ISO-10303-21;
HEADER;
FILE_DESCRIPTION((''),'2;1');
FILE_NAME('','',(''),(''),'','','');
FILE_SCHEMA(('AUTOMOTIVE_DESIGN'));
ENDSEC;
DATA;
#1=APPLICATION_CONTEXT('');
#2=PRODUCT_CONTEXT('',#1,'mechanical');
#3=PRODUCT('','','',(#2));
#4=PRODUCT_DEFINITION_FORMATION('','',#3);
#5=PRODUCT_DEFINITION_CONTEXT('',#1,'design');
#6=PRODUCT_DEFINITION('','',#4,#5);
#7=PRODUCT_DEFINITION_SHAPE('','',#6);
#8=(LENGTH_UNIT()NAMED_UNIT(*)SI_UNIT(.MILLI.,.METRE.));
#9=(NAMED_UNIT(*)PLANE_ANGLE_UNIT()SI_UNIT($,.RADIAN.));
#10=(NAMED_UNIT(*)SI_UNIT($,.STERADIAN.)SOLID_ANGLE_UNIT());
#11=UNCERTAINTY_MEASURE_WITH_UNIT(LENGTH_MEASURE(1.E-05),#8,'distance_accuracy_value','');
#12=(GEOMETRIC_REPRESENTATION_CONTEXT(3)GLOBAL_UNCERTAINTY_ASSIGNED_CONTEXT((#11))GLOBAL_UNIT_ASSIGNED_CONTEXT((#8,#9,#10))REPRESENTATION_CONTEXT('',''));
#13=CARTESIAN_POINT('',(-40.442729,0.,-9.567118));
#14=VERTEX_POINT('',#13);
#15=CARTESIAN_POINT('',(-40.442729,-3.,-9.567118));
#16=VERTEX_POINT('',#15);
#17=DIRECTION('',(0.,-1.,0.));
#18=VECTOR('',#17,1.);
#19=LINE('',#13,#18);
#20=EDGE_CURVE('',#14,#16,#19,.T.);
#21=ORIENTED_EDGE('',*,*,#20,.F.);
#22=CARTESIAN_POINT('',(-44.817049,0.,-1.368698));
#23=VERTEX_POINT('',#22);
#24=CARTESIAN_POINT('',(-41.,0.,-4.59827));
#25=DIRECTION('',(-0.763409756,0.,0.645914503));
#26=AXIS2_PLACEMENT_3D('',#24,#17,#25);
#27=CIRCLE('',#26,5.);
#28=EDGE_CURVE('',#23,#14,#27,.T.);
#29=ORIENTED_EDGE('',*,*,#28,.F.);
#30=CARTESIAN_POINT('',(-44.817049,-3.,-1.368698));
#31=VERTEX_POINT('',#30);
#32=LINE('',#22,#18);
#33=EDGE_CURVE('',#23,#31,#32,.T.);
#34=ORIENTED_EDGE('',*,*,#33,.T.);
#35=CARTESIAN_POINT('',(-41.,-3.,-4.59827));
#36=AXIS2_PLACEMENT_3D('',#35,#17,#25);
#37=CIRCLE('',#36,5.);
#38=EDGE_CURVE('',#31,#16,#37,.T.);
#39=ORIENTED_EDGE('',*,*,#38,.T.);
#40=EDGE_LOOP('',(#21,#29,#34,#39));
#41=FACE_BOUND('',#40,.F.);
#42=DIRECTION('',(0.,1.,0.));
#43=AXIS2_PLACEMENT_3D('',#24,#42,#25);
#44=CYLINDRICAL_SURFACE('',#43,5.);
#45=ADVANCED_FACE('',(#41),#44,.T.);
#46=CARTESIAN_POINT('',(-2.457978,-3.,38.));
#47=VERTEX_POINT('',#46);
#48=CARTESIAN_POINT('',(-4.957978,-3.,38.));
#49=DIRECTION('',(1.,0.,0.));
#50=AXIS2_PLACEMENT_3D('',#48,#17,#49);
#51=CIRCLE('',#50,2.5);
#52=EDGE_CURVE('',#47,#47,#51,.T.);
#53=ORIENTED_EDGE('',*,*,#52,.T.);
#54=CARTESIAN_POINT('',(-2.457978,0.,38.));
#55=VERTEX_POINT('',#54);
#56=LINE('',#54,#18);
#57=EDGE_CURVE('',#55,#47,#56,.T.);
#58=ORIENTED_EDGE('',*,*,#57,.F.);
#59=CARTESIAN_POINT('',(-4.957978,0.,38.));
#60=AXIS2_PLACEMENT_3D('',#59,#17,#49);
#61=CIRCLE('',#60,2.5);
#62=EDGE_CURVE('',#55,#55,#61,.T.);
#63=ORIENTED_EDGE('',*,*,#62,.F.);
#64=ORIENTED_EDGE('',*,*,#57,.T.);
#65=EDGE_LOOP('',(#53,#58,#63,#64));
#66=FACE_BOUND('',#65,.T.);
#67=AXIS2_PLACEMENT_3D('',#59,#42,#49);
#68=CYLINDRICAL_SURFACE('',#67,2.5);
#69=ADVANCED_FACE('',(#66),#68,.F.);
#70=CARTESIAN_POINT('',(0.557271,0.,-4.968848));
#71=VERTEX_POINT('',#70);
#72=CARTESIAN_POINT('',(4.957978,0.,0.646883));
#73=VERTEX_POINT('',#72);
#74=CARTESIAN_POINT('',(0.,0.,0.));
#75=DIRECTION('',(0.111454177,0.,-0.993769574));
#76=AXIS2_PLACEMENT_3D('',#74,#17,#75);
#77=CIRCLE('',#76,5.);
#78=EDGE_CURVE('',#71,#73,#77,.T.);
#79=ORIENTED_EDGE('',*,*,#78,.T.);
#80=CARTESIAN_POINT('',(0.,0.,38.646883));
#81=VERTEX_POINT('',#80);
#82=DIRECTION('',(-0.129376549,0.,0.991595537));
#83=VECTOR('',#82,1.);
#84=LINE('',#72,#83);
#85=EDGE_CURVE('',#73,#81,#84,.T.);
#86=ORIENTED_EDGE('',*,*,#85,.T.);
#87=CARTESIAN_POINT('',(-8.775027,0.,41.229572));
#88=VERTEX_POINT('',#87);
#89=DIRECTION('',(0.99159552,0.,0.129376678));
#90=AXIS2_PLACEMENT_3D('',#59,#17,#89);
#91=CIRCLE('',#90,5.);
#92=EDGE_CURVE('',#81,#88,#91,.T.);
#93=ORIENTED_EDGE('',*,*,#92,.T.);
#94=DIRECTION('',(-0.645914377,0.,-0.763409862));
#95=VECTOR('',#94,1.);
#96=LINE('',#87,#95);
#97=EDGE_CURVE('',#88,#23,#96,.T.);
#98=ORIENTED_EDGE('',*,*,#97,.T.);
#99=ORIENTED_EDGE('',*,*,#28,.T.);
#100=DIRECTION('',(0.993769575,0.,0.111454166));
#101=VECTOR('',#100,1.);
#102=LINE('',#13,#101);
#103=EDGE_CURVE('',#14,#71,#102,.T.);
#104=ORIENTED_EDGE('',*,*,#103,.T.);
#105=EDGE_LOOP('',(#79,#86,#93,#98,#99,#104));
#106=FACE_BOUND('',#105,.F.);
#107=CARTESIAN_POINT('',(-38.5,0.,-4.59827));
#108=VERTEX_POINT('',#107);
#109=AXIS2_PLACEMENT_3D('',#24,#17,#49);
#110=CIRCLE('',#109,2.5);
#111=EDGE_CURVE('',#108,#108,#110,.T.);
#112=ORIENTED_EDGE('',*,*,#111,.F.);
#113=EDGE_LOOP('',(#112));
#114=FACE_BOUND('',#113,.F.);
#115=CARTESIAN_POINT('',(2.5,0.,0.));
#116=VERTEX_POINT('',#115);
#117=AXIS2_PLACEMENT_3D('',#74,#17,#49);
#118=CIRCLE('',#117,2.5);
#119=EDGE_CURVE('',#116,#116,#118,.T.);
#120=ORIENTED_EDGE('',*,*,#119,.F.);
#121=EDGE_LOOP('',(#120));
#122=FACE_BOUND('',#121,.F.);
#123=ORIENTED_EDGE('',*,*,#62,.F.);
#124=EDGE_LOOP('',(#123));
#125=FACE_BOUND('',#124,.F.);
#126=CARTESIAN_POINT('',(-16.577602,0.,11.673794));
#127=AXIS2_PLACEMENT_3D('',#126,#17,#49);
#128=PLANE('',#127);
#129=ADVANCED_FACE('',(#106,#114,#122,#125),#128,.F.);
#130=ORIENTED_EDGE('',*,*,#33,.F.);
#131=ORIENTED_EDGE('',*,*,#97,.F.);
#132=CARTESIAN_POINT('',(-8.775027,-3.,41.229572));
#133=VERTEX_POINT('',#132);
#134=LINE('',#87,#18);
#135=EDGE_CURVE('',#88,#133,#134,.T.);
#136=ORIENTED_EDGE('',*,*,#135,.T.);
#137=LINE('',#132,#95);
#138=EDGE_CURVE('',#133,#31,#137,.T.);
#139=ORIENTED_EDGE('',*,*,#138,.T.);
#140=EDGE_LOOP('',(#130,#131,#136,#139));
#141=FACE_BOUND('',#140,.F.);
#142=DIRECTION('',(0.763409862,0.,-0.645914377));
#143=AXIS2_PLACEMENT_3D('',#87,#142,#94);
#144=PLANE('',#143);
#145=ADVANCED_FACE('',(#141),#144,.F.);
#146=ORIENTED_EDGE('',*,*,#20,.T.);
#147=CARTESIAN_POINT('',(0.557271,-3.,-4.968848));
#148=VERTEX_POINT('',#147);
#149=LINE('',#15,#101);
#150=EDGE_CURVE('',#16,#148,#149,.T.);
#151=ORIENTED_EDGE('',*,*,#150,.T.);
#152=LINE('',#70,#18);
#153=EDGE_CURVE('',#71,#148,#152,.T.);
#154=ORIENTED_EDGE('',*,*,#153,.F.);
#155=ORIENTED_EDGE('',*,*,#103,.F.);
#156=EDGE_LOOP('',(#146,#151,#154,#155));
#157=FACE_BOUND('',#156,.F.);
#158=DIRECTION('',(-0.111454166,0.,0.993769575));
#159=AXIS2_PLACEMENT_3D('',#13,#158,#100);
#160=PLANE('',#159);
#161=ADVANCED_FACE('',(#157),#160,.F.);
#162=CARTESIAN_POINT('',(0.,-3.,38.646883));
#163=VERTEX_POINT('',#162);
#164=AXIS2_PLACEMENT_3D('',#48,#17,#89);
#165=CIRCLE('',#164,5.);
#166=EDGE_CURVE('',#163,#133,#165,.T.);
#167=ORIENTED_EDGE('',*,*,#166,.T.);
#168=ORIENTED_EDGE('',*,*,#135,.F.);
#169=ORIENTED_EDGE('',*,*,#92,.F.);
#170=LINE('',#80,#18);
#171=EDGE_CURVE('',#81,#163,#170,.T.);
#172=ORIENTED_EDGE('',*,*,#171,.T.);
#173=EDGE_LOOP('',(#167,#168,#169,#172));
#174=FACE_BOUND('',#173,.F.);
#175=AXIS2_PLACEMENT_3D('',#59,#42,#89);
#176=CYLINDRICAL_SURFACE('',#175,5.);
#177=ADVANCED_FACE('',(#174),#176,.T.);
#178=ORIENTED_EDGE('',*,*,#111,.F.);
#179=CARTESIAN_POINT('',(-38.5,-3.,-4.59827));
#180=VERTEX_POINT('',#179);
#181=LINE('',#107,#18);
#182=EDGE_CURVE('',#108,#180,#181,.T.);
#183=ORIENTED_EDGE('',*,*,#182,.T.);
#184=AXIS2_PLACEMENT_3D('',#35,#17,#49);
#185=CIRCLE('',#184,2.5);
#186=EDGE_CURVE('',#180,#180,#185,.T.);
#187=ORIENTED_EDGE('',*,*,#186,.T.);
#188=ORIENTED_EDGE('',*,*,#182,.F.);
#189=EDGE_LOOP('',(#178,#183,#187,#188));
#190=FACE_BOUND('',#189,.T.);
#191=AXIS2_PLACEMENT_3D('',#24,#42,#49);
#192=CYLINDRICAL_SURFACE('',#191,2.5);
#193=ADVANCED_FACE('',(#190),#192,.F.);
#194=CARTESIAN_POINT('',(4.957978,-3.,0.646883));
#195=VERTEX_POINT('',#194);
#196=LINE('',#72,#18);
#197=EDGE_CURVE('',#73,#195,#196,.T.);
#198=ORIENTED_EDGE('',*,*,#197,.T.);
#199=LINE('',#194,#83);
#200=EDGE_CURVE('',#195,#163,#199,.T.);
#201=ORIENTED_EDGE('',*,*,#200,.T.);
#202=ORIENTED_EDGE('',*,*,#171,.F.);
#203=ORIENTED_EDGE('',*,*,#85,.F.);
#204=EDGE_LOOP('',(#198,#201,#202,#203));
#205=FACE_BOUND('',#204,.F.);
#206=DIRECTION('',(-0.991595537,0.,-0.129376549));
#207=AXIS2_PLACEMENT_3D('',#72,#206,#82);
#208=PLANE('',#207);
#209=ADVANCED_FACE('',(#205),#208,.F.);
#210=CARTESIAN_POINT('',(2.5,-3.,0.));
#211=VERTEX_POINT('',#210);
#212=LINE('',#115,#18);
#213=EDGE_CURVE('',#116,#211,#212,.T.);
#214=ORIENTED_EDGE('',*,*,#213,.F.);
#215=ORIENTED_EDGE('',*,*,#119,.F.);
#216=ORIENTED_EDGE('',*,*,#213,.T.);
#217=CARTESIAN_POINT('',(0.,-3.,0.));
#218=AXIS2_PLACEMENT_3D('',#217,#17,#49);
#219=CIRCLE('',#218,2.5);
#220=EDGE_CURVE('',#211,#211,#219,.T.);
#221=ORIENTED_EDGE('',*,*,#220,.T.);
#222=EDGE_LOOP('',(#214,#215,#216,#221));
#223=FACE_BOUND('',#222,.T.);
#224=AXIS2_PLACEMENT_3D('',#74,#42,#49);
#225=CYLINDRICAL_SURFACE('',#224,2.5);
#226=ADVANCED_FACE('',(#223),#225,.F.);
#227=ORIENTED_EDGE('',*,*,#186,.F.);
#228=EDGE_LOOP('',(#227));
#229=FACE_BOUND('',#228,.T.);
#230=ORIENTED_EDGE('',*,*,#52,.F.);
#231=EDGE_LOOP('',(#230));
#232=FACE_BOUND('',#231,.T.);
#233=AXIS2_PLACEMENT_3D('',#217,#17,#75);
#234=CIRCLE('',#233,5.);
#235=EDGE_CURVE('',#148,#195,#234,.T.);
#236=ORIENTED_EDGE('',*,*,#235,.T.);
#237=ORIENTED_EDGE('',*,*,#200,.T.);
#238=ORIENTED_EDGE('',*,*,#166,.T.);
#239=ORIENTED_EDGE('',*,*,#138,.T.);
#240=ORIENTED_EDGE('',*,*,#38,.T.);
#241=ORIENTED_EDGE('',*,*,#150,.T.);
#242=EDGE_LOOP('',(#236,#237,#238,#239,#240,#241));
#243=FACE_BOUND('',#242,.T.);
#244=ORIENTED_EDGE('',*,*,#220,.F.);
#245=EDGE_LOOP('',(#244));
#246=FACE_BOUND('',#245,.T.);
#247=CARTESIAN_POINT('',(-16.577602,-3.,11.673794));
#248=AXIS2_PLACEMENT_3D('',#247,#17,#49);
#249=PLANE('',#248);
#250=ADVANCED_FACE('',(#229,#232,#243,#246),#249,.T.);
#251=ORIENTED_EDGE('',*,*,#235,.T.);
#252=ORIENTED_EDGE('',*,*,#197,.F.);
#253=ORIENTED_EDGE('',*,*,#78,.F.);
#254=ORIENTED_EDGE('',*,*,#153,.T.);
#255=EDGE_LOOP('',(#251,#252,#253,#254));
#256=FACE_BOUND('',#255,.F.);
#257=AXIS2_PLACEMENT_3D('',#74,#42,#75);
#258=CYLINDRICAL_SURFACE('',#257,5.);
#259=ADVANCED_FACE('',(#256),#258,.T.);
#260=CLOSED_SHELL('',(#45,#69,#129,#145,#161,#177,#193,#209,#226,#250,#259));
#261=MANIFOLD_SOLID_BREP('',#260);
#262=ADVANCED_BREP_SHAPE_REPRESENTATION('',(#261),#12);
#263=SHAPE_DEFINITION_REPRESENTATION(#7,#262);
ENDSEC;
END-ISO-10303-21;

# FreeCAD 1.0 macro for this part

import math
import FreeCAD as App
import Part
import Sketcher
from FreeCAD import Vector
Q = App.Units.Quantity

doc = App.newDocument("Part")
body = doc.addObject("PartDesign::Body", "Body")

# Sketch on XZ plane
sketch1 = body.newObject("Sketcher::SketchObject", "Sketch")
sketch1.AttachmentSupport = (doc.getObject("XZ_Plane"), [""])
sketch1.MapMode = "FlatFace"
sketch1.addGeometry(Part.ArcOfCircle(Part.Circle(Vector(0, 0, 0), Vector(0, 0, 1), 5), math.radians(-83.600851), math.radians(7.433568)), False)
sketch1.addGeometry(Part.LineSegment(Vector(4.957978, 0.646883, 0), Vector(0, 38.646883, 0)), False)
sketch1.addGeometry(Part.ArcOfCircle(Part.Circle(Vector(-4.957978, 38, 0), Vector(0, 0, 1), 5), math.radians(7.433574), math.radians(139.765727)), False)
sketch1.addGeometry(Part.LineSegment(Vector(-8.775027, 41.229572, 0), Vector(-44.817049, -1.368698, 0)), False)
sketch1.addGeometry(Part.ArcOfCircle(Part.Circle(Vector(-41, -4.59827, 0), Vector(0, 0, 1), 5), math.radians(139.765724), math.radians(276.399155)), False)
sketch1.addGeometry(Part.LineSegment(Vector(-40.442729, -9.567118, 0), Vector(0.557271, -4.968848, 0)), False)
sketch1.addGeometry(Part.Circle(Vector(-41, -4.59827, 0), Vector(0, 0, 1), 2.5), False)
sketch1.addGeometry(Part.Circle(Vector(0, 0, 0), Vector(0, 0, 1), 2.5), False)
sketch1.addGeometry(Part.Circle(Vector(-4.957978, 38, 0), Vector(0, 0, 1), 2.5), False)
sketch1.addConstraint(Sketcher.Constraint("Tangent", 0, 2, 1, 1))
sketch1.addConstraint(Sketcher.Constraint("Tangent", 1, 2, 2, 1))
sketch1.addConstraint(Sketcher.Constraint("Tangent", 2, 2, 3, 1))
sketch1.addConstraint(Sketcher.Constraint("Tangent", 3, 2, 4, 1))
sketch1.addConstraint(Sketcher.Constraint("Tangent", 4, 2, 5, 1))
sketch1.addConstraint(Sketcher.Constraint("Tangent", 5, 2, 0, 1))
sketch1.addConstraint(Sketcher.Constraint("Coincident", 0, 3, -1, 1))
sketch1.addConstraint(Sketcher.Constraint("Coincident", 7, 3, -1, 1))
sketch1.addConstraint(Sketcher.Constraint("Coincident", 6, 3, 4, 3))
sketch1.addConstraint(Sketcher.Constraint("Coincident", 8, 3, 2, 3))
sketch1.addConstraint(Sketcher.Constraint("Equal", 0, 2))
sketch1.addConstraint(Sketcher.Constraint("Equal", 2, 4))
sketch1.addConstraint(Sketcher.Constraint("Equal", 6, 7))
sketch1.addConstraint(Sketcher.Constraint("Equal", 7, 8))
sketch1.addConstraint(Sketcher.Constraint("PointOnObject", 1, 2, -2))
sketch1.addConstraint(Sketcher.Constraint("Diameter", 6, Q("5 mm")))
sketch1.addConstraint(Sketcher.Constraint("Radius", 0, Q("5 mm")))
sketch1.addConstraint(Sketcher.Constraint("DistanceY", -1, 1, 2, 3, Q("38 mm")))
sketch1.addConstraint(Sketcher.Constraint("DistanceX", 4, 3, -1, 1, Q("41 mm")))
sketch1.addConstraint(Sketcher.Constraint("Distance", 3, Q("55.8 mm")))
pad1 = body.newObject("PartDesign::Pad", "Pad")
pad1.Profile = sketch1
pad1.Length = 3

doc.recompute()
